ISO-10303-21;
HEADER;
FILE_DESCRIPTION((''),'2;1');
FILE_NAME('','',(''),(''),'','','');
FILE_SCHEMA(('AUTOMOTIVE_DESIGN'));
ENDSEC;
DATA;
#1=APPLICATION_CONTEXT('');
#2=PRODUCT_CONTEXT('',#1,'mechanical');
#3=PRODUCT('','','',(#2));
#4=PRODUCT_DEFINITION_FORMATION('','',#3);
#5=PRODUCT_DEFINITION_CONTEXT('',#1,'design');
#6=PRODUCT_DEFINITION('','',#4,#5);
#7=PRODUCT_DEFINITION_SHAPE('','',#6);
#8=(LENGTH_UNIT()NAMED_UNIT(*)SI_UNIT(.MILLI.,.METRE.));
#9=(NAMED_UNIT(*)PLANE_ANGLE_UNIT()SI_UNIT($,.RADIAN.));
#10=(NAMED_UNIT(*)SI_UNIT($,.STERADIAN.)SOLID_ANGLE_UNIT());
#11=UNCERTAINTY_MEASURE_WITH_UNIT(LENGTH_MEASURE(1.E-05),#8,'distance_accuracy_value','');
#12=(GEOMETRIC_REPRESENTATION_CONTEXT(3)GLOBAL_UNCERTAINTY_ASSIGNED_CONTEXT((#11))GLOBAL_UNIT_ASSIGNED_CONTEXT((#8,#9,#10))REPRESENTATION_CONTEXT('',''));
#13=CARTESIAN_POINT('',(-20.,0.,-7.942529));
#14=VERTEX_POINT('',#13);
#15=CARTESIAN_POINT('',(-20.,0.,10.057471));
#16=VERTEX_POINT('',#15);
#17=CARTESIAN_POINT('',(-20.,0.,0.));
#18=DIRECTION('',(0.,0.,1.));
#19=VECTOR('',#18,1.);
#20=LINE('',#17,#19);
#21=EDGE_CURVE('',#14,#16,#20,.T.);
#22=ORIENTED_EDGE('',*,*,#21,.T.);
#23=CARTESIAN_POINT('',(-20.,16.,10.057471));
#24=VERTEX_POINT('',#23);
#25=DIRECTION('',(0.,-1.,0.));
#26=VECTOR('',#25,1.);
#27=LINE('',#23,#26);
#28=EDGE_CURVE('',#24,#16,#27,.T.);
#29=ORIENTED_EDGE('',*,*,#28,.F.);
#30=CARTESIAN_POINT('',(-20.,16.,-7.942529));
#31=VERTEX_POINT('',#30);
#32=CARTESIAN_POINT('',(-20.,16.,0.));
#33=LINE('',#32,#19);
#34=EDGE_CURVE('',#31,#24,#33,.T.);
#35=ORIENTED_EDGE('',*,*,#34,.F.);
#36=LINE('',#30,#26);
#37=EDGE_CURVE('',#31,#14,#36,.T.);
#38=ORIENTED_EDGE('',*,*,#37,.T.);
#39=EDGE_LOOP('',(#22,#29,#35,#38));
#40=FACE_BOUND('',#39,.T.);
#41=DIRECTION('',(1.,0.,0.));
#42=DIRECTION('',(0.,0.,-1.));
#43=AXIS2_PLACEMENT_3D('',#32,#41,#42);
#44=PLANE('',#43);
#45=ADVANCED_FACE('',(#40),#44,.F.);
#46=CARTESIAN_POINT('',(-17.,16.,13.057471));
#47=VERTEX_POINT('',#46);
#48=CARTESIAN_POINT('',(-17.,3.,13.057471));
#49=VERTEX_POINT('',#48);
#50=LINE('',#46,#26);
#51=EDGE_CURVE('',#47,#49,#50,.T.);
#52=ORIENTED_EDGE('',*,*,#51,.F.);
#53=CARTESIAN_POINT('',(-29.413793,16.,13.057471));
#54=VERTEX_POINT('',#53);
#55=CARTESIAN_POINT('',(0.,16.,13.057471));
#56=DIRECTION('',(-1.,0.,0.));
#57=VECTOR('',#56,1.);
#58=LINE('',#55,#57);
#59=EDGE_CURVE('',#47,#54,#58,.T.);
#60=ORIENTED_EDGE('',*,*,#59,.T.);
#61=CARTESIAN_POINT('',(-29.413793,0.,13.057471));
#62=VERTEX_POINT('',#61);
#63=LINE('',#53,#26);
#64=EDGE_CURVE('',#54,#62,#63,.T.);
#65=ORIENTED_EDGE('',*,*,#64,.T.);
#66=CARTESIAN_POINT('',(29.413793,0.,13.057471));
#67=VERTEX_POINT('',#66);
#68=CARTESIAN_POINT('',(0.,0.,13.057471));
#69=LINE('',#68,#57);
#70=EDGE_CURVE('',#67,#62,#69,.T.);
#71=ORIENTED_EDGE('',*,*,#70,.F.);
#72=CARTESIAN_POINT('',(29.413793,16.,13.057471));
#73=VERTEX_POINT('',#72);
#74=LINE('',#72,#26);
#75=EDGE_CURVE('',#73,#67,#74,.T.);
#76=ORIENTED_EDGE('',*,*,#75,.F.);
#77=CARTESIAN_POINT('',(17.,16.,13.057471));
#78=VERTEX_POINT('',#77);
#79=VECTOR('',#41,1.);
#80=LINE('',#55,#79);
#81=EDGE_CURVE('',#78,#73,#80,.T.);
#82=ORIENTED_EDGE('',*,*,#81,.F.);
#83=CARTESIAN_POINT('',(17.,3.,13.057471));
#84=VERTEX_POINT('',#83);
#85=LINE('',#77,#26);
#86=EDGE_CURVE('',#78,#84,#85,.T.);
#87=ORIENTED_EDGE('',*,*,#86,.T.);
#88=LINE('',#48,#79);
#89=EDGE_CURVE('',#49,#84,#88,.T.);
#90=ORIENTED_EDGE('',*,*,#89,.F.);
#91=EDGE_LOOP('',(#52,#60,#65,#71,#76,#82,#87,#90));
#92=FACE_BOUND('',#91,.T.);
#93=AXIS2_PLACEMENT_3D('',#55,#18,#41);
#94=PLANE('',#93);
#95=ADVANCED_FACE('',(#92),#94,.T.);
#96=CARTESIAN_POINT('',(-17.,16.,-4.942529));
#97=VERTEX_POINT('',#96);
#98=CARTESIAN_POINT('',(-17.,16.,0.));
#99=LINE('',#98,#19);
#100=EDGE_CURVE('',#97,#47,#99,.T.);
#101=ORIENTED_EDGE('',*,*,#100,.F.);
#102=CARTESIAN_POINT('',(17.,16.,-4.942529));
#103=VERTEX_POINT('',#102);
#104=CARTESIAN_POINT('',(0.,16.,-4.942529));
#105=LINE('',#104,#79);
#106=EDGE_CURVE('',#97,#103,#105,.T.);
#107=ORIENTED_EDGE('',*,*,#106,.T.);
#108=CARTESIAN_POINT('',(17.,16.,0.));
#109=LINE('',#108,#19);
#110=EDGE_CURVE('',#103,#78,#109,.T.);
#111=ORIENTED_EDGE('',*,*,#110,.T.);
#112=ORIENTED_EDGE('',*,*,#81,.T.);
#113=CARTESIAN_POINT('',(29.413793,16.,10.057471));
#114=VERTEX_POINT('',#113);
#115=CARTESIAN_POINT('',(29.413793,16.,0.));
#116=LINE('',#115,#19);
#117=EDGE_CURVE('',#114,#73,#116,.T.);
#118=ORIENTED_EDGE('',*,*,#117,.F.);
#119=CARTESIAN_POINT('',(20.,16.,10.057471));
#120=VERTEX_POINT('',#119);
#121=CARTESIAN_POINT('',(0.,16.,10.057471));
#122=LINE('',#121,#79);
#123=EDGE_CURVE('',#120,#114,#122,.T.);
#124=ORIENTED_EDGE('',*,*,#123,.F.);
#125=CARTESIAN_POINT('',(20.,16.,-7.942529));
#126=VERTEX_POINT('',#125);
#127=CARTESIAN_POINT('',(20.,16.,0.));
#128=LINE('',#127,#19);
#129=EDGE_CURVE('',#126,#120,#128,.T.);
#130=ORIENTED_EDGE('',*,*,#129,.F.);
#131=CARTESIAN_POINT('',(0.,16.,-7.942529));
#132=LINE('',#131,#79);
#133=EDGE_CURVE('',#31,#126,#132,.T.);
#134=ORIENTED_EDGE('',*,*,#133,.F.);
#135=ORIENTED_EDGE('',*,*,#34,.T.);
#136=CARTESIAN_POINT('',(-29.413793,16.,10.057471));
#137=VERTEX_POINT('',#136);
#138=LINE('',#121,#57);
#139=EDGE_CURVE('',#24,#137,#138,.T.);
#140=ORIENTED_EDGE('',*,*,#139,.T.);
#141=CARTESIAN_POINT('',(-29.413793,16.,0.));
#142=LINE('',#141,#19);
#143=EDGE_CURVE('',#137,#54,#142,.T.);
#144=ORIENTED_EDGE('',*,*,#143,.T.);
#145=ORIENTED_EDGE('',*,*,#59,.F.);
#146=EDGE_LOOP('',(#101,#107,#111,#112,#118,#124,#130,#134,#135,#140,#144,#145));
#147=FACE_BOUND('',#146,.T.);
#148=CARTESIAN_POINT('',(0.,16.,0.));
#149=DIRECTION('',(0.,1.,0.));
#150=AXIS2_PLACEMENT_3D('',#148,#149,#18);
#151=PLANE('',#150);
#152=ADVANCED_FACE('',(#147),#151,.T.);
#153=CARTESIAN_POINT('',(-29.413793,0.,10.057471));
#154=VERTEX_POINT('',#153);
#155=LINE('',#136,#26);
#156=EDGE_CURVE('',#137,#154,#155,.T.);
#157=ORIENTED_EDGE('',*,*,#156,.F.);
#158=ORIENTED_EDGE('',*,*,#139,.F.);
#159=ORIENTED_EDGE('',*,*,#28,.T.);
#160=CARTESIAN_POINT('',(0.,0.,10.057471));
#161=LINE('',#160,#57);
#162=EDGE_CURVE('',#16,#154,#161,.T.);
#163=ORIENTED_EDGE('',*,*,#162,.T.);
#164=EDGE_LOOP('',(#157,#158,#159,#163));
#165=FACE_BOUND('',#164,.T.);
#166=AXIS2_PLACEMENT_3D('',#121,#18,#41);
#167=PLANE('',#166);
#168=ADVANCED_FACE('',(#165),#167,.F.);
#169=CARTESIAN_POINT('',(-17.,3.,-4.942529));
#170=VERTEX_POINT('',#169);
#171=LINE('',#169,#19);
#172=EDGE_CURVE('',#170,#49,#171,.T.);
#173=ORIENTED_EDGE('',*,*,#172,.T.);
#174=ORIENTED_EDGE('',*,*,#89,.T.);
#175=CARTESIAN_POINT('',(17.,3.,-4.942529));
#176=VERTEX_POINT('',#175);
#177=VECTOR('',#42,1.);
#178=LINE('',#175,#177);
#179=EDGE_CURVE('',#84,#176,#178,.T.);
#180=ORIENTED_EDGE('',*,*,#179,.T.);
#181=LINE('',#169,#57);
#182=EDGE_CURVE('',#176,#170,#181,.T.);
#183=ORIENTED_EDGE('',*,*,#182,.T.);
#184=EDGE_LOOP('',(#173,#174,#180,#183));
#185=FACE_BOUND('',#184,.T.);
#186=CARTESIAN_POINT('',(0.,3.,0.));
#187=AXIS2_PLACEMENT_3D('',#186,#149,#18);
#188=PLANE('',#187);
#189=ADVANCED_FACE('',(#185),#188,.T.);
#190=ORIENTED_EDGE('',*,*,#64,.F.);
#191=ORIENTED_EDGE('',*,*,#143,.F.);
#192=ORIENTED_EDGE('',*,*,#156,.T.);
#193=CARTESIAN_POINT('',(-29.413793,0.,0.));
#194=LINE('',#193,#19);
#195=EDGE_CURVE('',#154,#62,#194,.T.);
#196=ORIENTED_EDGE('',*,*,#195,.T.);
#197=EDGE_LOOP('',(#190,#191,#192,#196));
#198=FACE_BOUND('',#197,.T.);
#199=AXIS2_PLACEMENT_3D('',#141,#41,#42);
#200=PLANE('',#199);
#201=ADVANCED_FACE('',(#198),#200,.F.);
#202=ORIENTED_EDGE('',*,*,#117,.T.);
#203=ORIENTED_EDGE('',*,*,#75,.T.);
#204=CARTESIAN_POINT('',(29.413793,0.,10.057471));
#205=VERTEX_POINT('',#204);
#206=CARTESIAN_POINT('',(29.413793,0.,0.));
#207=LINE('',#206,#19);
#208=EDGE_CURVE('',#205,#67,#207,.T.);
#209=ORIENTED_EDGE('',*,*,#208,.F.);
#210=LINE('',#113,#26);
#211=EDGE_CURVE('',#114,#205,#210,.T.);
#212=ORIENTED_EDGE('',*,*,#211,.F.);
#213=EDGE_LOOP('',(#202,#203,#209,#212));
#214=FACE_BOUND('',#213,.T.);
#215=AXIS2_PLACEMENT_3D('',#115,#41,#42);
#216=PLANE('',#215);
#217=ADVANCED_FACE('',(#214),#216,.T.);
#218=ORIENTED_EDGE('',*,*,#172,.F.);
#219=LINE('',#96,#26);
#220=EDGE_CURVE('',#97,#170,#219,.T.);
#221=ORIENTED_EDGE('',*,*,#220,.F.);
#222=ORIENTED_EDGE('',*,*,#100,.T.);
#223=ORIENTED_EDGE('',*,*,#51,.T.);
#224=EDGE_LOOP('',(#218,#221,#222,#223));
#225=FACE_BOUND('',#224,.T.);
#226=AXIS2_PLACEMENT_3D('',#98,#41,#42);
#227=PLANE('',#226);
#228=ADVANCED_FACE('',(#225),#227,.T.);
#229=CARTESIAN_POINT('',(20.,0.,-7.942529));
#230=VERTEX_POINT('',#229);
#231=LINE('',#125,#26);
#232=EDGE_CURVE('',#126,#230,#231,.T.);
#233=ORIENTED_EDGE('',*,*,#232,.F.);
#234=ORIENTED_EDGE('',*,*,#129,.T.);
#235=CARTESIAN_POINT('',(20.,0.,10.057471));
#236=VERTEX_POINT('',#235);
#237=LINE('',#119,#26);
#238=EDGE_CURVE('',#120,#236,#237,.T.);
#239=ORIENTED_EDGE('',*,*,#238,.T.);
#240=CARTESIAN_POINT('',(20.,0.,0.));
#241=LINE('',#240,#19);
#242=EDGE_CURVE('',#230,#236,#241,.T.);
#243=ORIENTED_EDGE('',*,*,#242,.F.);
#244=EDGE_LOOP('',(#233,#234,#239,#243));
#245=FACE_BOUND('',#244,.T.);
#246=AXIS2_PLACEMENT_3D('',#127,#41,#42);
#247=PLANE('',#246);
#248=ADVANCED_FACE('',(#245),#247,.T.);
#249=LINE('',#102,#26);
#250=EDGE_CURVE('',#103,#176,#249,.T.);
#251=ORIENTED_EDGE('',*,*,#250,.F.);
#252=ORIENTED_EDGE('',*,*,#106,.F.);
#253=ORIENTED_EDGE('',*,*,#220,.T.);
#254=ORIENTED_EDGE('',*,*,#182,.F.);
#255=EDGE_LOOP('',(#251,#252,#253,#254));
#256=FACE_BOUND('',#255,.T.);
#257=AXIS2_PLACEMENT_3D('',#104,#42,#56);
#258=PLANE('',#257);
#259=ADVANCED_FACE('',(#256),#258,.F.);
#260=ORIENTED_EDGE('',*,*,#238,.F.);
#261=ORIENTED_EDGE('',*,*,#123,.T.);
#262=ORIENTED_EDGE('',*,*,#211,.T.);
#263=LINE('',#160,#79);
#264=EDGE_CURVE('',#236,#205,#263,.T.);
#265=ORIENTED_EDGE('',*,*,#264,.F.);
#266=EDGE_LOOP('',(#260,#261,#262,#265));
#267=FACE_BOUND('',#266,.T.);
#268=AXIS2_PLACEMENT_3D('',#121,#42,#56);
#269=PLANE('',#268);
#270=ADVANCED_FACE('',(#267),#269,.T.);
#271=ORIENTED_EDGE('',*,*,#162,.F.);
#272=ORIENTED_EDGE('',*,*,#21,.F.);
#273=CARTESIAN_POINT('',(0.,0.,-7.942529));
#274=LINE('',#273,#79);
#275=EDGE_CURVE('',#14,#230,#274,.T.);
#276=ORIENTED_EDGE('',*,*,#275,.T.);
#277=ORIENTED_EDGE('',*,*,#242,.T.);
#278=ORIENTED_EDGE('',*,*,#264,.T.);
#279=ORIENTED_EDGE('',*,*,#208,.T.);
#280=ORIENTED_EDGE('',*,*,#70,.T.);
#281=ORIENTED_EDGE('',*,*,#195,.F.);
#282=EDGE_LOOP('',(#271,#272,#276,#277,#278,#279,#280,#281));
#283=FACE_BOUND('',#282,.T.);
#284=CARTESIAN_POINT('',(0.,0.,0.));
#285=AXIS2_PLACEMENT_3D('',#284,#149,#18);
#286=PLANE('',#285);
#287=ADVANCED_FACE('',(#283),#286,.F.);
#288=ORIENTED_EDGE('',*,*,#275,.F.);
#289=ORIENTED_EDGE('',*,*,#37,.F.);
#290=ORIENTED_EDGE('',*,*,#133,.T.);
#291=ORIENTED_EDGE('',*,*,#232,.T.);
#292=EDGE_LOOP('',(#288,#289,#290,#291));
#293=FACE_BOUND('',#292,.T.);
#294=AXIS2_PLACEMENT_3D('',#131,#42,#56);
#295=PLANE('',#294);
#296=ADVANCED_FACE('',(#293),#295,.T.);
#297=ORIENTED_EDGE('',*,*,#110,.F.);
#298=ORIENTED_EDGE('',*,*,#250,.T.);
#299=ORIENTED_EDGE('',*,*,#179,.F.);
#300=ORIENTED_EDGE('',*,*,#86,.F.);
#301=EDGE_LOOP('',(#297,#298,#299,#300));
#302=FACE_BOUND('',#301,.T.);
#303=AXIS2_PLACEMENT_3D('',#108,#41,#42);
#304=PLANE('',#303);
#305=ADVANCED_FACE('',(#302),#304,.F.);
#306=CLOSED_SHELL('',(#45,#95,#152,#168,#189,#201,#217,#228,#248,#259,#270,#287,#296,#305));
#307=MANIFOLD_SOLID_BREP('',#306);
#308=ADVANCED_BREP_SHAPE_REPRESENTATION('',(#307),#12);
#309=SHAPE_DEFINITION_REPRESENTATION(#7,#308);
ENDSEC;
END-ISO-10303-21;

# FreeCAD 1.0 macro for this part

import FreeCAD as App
import Part
import Sketcher
Q = App.Units.Quantity


def add_polygon(sketch, points):
    """Adds a closed chain of lines whose ends are joined by coincident constraints."""
    first, n = sketch.GeometryCount, len(points)
    for a, b in zip(points, points[1:] + points[:1]):
        sketch.addGeometry(Part.LineSegment(App.Vector(*a, 0), App.Vector(*b, 0)), False)
    for i in range(n):
        sketch.addConstraint(Sketcher.Constraint("Coincident", first + i, 2, first + (i + 1) % n, 1))

doc = App.newDocument("Part")
body = doc.addObject("PartDesign::Body", "Body")

# Sketch on XZ plane
sketch1 = doc.addObject("Sketcher::SketchObject", "Sketch")
body.addObject(sketch1)
sketch1.AttachmentSupport = (doc.XZ_Plane, [""])
sketch1.MapMode = "FlatFace"
add_polygon(sketch1, [(-20, 10.1), (-29.4, 10.1), (-29.4, 13.1), (-17, 13.1), (-17, 10.1), (-17, -4.9), (17, -4.9), (17, 13.1), (29.4, 13.1), (29.4, 10.1), (20, 10.1), (20, -7.9), (-20, -7.9)])  # lines 0-12
sketch1.addConstraint(Sketcher.Constraint("Horizontal", 0))
sketch1.addConstraint(Sketcher.Constraint("Vertical", 1))
sketch1.addConstraint(Sketcher.Constraint("Horizontal", 2))
sketch1.addConstraint(Sketcher.Constraint("Vertical", 3))
sketch1.addConstraint(Sketcher.Constraint("Vertical", 4))
sketch1.addConstraint(Sketcher.Constraint("Horizontal", 5))
sketch1.addConstraint(Sketcher.Constraint("Vertical", 6))
sketch1.addConstraint(Sketcher.Constraint("Horizontal", 7))
sketch1.addConstraint(Sketcher.Constraint("Vertical", 8))
sketch1.addConstraint(Sketcher.Constraint("Horizontal", 9))
sketch1.addConstraint(Sketcher.Constraint("Vertical", 10))
sketch1.addConstraint(Sketcher.Constraint("Horizontal", 11))
sketch1.addConstraint(Sketcher.Constraint("Vertical", 12))
sketch1.addConstraint(Sketcher.Constraint("Symmetric", 2, 2, 6, 2, -2))
sketch1.addConstraint(Sketcher.Constraint("Symmetric", 0, 2, 8, 2, -2))
sketch1.addConstraint(Sketcher.Constraint("Horizontal", 0, 2, 3, 2))
sketch1.addConstraint(Sketcher.Constraint("Equal", 0, 9))
sketch1.addConstraint(Sketcher.Constraint("Equal", 6, 10))
sketch1.addConstraint(Sketcher.Constraint("DistanceX", 5, 1, 5, 2, Q("34 mm")))
sketch1.addConstraint(Sketcher.Constraint("DistanceX", 11, 2, 11, 1, Q("40 mm")))
sketch1.addConstraint(Sketcher.Constraint("DistanceY", 1, 1, 1, 2, Q("3 mm")))
sketch1.addConstraint(Sketcher.Constraint("DistanceY", 4, 2, 4, 1, Q("15 mm")))
sketch1.addConstraint(Sketcher.Constraint("DistanceX", 0, 2, 0, 1, Q("9.413793 mm")))
sketch1.addConstraint(Sketcher.Constraint("DistanceY", -1, 1, 0, 2, Q("10.057471 mm")))
pad1 = doc.addObject("PartDesign::Pad", "Pad")
body.addObject(pad1)
pad1.Profile = sketch1
pad1.Length = 16
pad1.Reversed = True

# Sketch on XZ plane
sketch2 = doc.addObject("Sketcher::SketchObject", "Sketch001")
body.addObject(sketch2)
sketch2.AttachmentSupport = (doc.XZ_Plane, [""])
sketch2.MapMode = "FlatFace"
add_polygon(sketch2, [(-17, -5), (-17, 13), (17, 13), (17, -5)])  # lines 0-3
sketch2.addConstraint(Sketcher.Constraint("Vertical", 0))
sketch2.addConstraint(Sketcher.Constraint("Horizontal", 1))
sketch2.addConstraint(Sketcher.Constraint("Vertical", 2))
sketch2.addConstraint(Sketcher.Constraint("Horizontal", 3))
sketch2.addConstraint(Sketcher.Constraint("DistanceX", 1, 1, 1, 2, Q("34 mm")))
sketch2.addConstraint(Sketcher.Constraint("DistanceY", 0, 1, 0, 2, Q("18 mm")))
sketch2.addConstraint(Sketcher.Constraint("DistanceX", 0, 2, -1, 1, Q("17 mm")))
sketch2.addConstraint(Sketcher.Constraint("DistanceY", -1, 1, 0, 2, Q("13.057471 mm")))
pad2 = doc.addObject("PartDesign::Pad", "Pad001")
body.addObject(pad2)
pad2.Profile = sketch2
pad2.Length = 3
pad2.Reversed = True

doc.recompute()
